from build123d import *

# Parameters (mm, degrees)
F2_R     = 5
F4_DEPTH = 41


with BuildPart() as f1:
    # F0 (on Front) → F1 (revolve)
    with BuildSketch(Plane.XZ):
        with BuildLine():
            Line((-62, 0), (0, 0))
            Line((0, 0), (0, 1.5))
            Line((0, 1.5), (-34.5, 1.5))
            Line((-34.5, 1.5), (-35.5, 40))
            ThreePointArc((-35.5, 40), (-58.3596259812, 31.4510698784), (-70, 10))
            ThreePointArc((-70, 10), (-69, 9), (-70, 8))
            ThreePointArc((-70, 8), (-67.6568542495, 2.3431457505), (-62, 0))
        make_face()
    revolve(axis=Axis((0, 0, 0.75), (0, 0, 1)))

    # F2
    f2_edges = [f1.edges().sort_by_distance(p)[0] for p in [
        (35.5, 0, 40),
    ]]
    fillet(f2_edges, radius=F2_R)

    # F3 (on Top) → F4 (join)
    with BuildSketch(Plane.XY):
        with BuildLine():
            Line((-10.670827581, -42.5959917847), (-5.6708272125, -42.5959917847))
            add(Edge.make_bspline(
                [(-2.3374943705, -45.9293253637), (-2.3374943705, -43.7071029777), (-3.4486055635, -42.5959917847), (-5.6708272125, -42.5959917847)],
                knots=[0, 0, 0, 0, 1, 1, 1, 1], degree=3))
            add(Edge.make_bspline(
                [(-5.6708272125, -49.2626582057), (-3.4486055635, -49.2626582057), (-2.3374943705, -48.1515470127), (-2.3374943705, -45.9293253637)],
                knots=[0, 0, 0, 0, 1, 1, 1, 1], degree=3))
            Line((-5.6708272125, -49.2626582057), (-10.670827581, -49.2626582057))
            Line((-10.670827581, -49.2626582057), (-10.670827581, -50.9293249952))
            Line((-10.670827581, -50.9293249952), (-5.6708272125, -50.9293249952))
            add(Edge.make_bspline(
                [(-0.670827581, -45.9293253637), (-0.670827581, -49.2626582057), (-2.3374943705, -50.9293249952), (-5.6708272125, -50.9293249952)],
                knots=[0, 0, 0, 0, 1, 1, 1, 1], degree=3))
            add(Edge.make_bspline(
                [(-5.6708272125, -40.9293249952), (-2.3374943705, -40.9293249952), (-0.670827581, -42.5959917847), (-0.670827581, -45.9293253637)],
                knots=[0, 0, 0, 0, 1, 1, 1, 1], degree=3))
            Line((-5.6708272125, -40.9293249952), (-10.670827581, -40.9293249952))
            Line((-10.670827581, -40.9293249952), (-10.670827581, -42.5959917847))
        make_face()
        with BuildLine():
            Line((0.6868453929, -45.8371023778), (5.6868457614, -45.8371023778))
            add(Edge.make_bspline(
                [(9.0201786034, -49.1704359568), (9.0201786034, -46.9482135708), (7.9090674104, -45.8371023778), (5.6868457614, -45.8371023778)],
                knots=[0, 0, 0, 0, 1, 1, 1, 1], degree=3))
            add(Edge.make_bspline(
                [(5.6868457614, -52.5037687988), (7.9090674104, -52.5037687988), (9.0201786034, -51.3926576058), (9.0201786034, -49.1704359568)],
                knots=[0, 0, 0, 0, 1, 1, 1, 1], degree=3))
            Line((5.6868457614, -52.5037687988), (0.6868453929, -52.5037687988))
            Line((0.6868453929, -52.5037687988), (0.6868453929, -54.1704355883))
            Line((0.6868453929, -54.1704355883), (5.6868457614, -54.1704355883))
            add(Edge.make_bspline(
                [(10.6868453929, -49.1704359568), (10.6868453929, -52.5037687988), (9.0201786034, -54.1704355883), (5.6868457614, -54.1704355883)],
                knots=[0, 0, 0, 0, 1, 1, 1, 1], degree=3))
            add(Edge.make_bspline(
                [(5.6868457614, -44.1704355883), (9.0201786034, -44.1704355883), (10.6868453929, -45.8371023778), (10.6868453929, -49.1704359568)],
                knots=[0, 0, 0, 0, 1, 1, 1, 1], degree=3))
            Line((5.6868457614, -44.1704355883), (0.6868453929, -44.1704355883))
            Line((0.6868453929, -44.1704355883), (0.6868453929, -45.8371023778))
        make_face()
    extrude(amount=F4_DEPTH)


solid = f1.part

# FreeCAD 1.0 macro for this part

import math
import FreeCAD as App
import Part
import Sketcher
from FreeCAD import Vector


def edges_at(feature, points):
    """Names of the edges that pass closest to the given points."""
    edges = feature.Shape.Edges
    near = lambda p: min(range(len(edges)), key=lambda i: edges[i].distToShape(Part.Vertex(*p))[0])
    return sorted({f"Edge{near(p) + 1}" for p in points})

doc = App.newDocument("Part")
body = doc.addObject("PartDesign::Body", "Body")

sketch1 = body.newObject("Sketcher::SketchObject", "Sketch")
sketch1.AttachmentSupport = (doc.getObject("XZ_Plane"), [""])
sketch1.MapMode = "FlatFace"
sketch1.addGeometry(Part.LineSegment(Vector(-62, 0, 0), Vector(0, 0, 0)), False)
sketch1.addGeometry(Part.LineSegment(Vector(0, 0, 0), Vector(0, 1.5, 0)), False)
sketch1.addGeometry(Part.LineSegment(Vector(0, 1.5, 0), Vector(-34.5, 1.5, 0)), False)
sketch1.addGeometry(Part.LineSegment(Vector(-34.5, 1.5, 0), Vector(-35.5, 40, 0)), False)
sketch1.addGeometry(Part.ArcOfCircle(Part.Circle(Vector(-35.5, 5.1625, 0), Vector(0, 0, 1), 34.8375), math.radians(90), math.radians(172.018174)), False)
sketch1.addGeometry(Part.ArcOfCircle(Part.Circle(Vector(-70, 9, 0), Vector(0, 0, 1), 1), math.radians(-90), math.radians(90)), False)
sketch1.addGeometry(Part.ArcOfCircle(Part.Circle(Vector(-62, 8, 0), Vector(0, 0, 1), 8), math.radians(180), math.radians(270)), False)
sketch1.addConstraint(Sketcher.Constraint("Coincident", 0, 2, 1, 1))
sketch1.addConstraint(Sketcher.Constraint("Coincident", 1, 2, 2, 1))
sketch1.addConstraint(Sketcher.Constraint("Coincident", 2, 2, 3, 1))
sketch1.addConstraint(Sketcher.Constraint("Coincident", 3, 2, 4, 1))
sketch1.addConstraint(Sketcher.Constraint("Coincident", 4, 2, 5, 2))
sketch1.addConstraint(Sketcher.Constraint("Coincident", 5, 1, 6, 1))
sketch1.addConstraint(Sketcher.Constraint("Tangent", 6, 2, 0, 1))
sketch1.addConstraint(Sketcher.Constraint("Horizontal", 0))
sketch1.addConstraint(Sketcher.Constraint("Vertical", 1))
sketch1.addConstraint(Sketcher.Constraint("Horizontal", 2))
sketch1.addConstraint(Sketcher.Constraint("Coincident", 0, 2, -1, 1))
sketch1.addConstraint(Sketcher.Constraint("Horizontal", 6, 3, 5, 1))
sketch1.addConstraint(Sketcher.Constraint("Vertical", 4, 3, 3, 2))
sketch1.addConstraint(Sketcher.Constraint("Vertical", 5, 3, 4, 2))
sketch1.addConstraint(Sketcher.Constraint("Vertical", 4, 2, 5, 1))
sketch1.addConstraint(Sketcher.Constraint("Radius", 5, 1.0))
sketch1.addConstraint(Sketcher.Constraint("Radius", 6, 8.0))
sketch1.addConstraint(Sketcher.Constraint("DistanceX", 0, 1, 0, 2, 62.0))
sketch1.addConstraint(Sketcher.Constraint("DistanceX", 2, 2, 2, 1, 34.5))
sketch1.addConstraint(Sketcher.Constraint("DistanceY", 1, 1, 1, 2, 1.5))
sketch1.addConstraint(Sketcher.Constraint("DistanceY", -1, 1, 3, 2, 40.0))
sketch1.addConstraint(Sketcher.Constraint("DistanceX", 4, 3, 2, 2, 1.0))
revolution = body.newObject("PartDesign::Revolution", "Revolution")
revolution.Profile = sketch1
revolution.ReferenceAxis = (sketch1, ["V_Axis"])
revolution.Angle = 360
doc.recompute()

fillet = body.newObject("PartDesign::Fillet", "Fillet")
fillet.Base = (revolution, edges_at(revolution, [(35.5, 0, 40)]))
fillet.Radius = 5

sketch2 = body.newObject("Sketcher::SketchObject", "Sketch001")
sketch2.AttachmentSupport = (doc.getObject("XY_Plane"), [""])
sketch2.MapMode = "FlatFace"
sketch2.addGeometry(Part.LineSegment(Vector(-10.670828, -42.595992, 0), Vector(-5.670827, -42.595992, 0)), False)
sketch2.addGeometry(Part.BSplineCurve([Vector(-5.670827, -49.262658, 0), Vector(-3.448606, -49.262658, 0), Vector(-2.337494, -48.151547, 0), Vector(-2.337494, -43.707103, 0), Vector(-3.448606, -42.595992, 0), Vector(-5.670827, -42.595992, 0)], [4, 2, 4], [0, 1, 2.000000332], False, 3, [1, 1, 1, 1, 1, 1], False), False)
sketch2.addGeometry(Part.LineSegment(Vector(-5.670827, -49.262658, 0), Vector(-10.670828, -49.262658, 0)), False)
sketch2.addGeometry(Part.LineSegment(Vector(-10.670828, -49.262658, 0), Vector(-10.670828, -50.929325, 0)), False)
sketch2.addGeometry(Part.LineSegment(Vector(-10.670828, -50.929325, 0), Vector(-5.670827, -50.929325, 0)), False)
sketch2.addGeometry(Part.BSplineCurve([Vector(-5.670827, -40.929325, 0), Vector(-2.337494, -40.929325, 0), Vector(-0.670828, -42.595992, 0), Vector(-0.670828, -49.262658, 0), Vector(-2.337494, -50.929325, 0), Vector(-5.670827, -50.929325, 0)], [4, 2, 4], [0, 1, 1.999999779], False, 3, [1, 1, 1, 1, 1, 1], False), False)
sketch2.addGeometry(Part.LineSegment(Vector(-5.670827, -40.929325, 0), Vector(-10.670828, -40.929325, 0)), False)
sketch2.addGeometry(Part.LineSegment(Vector(-10.670828, -40.929325, 0), Vector(-10.670828, -42.595992, 0)), False)
sketch2.addGeometry(Part.LineSegment(Vector(0.686845, -45.837102, 0), Vector(5.686846, -45.837102, 0)), False)
sketch2.addGeometry(Part.BSplineCurve([Vector(5.686846, -52.503769, 0), Vector(7.909067, -52.503769, 0), Vector(9.020179, -51.392658, 0), Vector(9.020179, -46.948214, 0), Vector(7.909067, -45.837102, 0), Vector(5.686846, -45.837102, 0)], [4, 2, 4], [0, 1, 2.000000332], False, 3, [1, 1, 1, 1, 1, 1], False), False)
sketch2.addGeometry(Part.LineSegment(Vector(5.686846, -52.503769, 0), Vector(0.686845, -52.503769, 0)), False)
sketch2.addGeometry(Part.LineSegment(Vector(0.686845, -52.503769, 0), Vector(0.686845, -54.170436, 0)), False)
sketch2.addGeometry(Part.LineSegment(Vector(0.686845, -54.170436, 0), Vector(5.686846, -54.170436, 0)), False)
sketch2.addGeometry(Part.BSplineCurve([Vector(5.686846, -44.170436, 0), Vector(9.020179, -44.170436, 0), Vector(10.686845, -45.837102, 0), Vector(10.686845, -52.503769, 0), Vector(9.020179, -54.170436, 0), Vector(5.686846, -54.170436, 0)], [4, 2, 4], [0, 1, 1.999999779], False, 3, [1, 1, 1, 1, 1, 1], False), False)
sketch2.addGeometry(Part.LineSegment(Vector(5.686846, -44.170436, 0), Vector(0.686845, -44.170436, 0)), False)
sketch2.addGeometry(Part.LineSegment(Vector(0.686845, -44.170436, 0), Vector(0.686845, -45.837102, 0)), False)
sketch2.addConstraint(Sketcher.Constraint("Block", 1))
sketch2.addConstraint(Sketcher.Constraint("Block", 5))
sketch2.addConstraint(Sketcher.Constraint("Block", 9))
sketch2.addConstraint(Sketcher.Constraint("Block", 13))
sketch2.addConstraint(Sketcher.Constraint("Coincident", 0, 2, 1, 2))
sketch2.addConstraint(Sketcher.Constraint("Coincident", 1, 1, 2, 1))
sketch2.addConstraint(Sketcher.Constraint("Coincident", 2, 2, 3, 1))
sketch2.addConstraint(Sketcher.Constraint("Coincident", 3, 2, 4, 1))
sketch2.addConstraint(Sketcher.Constraint("Coincident", 4, 2, 5, 2))
sketch2.addConstraint(Sketcher.Constraint("Coincident", 5, 1, 6, 1))
sketch2.addConstraint(Sketcher.Constraint("Coincident", 6, 2, 7, 1))
sketch2.addConstraint(Sketcher.Constraint("Coincident", 7, 2, 0, 1))
sketch2.addConstraint(Sketcher.Constraint("Coincident", 8, 2, 9, 2))
sketch2.addConstraint(Sketcher.Constraint("Coincident", 9, 1, 10, 1))
sketch2.addConstraint(Sketcher.Constraint("Coincident", 10, 2, 11, 1))
sketch2.addConstraint(Sketcher.Constraint("Coincident", 11, 2, 12, 1))
sketch2.addConstraint(Sketcher.Constraint("Coincident", 12, 2, 13, 2))
sketch2.addConstraint(Sketcher.Constraint("Coincident", 13, 1, 14, 1))
sketch2.addConstraint(Sketcher.Constraint("Coincident", 14, 2, 15, 1))
sketch2.addConstraint(Sketcher.Constraint("Coincident", 15, 2, 8, 1))
sketch2.addConstraint(Sketcher.Constraint("Horizontal", 0))
sketch2.addConstraint(Sketcher.Constraint("Horizontal", 2))
sketch2.addConstraint(Sketcher.Constraint("Vertical", 3))
sketch2.addConstraint(Sketcher.Constraint("Horizontal", 4))
sketch2.addConstraint(Sketcher.Constraint("Horizontal", 6))
sketch2.addConstraint(Sketcher.Constraint("Vertical", 7))
sketch2.addConstraint(Sketcher.Constraint("Horizontal", 8))
sketch2.addConstraint(Sketcher.Constraint("Horizontal", 10))
sketch2.addConstraint(Sketcher.Constraint("Vertical", 11))
sketch2.addConstraint(Sketcher.Constraint("Horizontal", 12))
sketch2.addConstraint(Sketcher.Constraint("Horizontal", 14))
sketch2.addConstraint(Sketcher.Constraint("Vertical", 15))
sketch2.addConstraint(Sketcher.Constraint("Vertical", 3, 2, 6, 2))
sketch2.addConstraint(Sketcher.Constraint("Vertical", 11, 2, 14, 2))
sketch2.addConstraint(Sketcher.Constraint("Equal", 6, 8))
sketch2.addConstraint(Sketcher.Constraint("DistanceX", 0, 1, 0, 2, 5.0))
pad1 = body.newObject("PartDesign::Pad", "Pad")
pad1.Profile = sketch2
pad1.Length = 41

doc.recompute()
